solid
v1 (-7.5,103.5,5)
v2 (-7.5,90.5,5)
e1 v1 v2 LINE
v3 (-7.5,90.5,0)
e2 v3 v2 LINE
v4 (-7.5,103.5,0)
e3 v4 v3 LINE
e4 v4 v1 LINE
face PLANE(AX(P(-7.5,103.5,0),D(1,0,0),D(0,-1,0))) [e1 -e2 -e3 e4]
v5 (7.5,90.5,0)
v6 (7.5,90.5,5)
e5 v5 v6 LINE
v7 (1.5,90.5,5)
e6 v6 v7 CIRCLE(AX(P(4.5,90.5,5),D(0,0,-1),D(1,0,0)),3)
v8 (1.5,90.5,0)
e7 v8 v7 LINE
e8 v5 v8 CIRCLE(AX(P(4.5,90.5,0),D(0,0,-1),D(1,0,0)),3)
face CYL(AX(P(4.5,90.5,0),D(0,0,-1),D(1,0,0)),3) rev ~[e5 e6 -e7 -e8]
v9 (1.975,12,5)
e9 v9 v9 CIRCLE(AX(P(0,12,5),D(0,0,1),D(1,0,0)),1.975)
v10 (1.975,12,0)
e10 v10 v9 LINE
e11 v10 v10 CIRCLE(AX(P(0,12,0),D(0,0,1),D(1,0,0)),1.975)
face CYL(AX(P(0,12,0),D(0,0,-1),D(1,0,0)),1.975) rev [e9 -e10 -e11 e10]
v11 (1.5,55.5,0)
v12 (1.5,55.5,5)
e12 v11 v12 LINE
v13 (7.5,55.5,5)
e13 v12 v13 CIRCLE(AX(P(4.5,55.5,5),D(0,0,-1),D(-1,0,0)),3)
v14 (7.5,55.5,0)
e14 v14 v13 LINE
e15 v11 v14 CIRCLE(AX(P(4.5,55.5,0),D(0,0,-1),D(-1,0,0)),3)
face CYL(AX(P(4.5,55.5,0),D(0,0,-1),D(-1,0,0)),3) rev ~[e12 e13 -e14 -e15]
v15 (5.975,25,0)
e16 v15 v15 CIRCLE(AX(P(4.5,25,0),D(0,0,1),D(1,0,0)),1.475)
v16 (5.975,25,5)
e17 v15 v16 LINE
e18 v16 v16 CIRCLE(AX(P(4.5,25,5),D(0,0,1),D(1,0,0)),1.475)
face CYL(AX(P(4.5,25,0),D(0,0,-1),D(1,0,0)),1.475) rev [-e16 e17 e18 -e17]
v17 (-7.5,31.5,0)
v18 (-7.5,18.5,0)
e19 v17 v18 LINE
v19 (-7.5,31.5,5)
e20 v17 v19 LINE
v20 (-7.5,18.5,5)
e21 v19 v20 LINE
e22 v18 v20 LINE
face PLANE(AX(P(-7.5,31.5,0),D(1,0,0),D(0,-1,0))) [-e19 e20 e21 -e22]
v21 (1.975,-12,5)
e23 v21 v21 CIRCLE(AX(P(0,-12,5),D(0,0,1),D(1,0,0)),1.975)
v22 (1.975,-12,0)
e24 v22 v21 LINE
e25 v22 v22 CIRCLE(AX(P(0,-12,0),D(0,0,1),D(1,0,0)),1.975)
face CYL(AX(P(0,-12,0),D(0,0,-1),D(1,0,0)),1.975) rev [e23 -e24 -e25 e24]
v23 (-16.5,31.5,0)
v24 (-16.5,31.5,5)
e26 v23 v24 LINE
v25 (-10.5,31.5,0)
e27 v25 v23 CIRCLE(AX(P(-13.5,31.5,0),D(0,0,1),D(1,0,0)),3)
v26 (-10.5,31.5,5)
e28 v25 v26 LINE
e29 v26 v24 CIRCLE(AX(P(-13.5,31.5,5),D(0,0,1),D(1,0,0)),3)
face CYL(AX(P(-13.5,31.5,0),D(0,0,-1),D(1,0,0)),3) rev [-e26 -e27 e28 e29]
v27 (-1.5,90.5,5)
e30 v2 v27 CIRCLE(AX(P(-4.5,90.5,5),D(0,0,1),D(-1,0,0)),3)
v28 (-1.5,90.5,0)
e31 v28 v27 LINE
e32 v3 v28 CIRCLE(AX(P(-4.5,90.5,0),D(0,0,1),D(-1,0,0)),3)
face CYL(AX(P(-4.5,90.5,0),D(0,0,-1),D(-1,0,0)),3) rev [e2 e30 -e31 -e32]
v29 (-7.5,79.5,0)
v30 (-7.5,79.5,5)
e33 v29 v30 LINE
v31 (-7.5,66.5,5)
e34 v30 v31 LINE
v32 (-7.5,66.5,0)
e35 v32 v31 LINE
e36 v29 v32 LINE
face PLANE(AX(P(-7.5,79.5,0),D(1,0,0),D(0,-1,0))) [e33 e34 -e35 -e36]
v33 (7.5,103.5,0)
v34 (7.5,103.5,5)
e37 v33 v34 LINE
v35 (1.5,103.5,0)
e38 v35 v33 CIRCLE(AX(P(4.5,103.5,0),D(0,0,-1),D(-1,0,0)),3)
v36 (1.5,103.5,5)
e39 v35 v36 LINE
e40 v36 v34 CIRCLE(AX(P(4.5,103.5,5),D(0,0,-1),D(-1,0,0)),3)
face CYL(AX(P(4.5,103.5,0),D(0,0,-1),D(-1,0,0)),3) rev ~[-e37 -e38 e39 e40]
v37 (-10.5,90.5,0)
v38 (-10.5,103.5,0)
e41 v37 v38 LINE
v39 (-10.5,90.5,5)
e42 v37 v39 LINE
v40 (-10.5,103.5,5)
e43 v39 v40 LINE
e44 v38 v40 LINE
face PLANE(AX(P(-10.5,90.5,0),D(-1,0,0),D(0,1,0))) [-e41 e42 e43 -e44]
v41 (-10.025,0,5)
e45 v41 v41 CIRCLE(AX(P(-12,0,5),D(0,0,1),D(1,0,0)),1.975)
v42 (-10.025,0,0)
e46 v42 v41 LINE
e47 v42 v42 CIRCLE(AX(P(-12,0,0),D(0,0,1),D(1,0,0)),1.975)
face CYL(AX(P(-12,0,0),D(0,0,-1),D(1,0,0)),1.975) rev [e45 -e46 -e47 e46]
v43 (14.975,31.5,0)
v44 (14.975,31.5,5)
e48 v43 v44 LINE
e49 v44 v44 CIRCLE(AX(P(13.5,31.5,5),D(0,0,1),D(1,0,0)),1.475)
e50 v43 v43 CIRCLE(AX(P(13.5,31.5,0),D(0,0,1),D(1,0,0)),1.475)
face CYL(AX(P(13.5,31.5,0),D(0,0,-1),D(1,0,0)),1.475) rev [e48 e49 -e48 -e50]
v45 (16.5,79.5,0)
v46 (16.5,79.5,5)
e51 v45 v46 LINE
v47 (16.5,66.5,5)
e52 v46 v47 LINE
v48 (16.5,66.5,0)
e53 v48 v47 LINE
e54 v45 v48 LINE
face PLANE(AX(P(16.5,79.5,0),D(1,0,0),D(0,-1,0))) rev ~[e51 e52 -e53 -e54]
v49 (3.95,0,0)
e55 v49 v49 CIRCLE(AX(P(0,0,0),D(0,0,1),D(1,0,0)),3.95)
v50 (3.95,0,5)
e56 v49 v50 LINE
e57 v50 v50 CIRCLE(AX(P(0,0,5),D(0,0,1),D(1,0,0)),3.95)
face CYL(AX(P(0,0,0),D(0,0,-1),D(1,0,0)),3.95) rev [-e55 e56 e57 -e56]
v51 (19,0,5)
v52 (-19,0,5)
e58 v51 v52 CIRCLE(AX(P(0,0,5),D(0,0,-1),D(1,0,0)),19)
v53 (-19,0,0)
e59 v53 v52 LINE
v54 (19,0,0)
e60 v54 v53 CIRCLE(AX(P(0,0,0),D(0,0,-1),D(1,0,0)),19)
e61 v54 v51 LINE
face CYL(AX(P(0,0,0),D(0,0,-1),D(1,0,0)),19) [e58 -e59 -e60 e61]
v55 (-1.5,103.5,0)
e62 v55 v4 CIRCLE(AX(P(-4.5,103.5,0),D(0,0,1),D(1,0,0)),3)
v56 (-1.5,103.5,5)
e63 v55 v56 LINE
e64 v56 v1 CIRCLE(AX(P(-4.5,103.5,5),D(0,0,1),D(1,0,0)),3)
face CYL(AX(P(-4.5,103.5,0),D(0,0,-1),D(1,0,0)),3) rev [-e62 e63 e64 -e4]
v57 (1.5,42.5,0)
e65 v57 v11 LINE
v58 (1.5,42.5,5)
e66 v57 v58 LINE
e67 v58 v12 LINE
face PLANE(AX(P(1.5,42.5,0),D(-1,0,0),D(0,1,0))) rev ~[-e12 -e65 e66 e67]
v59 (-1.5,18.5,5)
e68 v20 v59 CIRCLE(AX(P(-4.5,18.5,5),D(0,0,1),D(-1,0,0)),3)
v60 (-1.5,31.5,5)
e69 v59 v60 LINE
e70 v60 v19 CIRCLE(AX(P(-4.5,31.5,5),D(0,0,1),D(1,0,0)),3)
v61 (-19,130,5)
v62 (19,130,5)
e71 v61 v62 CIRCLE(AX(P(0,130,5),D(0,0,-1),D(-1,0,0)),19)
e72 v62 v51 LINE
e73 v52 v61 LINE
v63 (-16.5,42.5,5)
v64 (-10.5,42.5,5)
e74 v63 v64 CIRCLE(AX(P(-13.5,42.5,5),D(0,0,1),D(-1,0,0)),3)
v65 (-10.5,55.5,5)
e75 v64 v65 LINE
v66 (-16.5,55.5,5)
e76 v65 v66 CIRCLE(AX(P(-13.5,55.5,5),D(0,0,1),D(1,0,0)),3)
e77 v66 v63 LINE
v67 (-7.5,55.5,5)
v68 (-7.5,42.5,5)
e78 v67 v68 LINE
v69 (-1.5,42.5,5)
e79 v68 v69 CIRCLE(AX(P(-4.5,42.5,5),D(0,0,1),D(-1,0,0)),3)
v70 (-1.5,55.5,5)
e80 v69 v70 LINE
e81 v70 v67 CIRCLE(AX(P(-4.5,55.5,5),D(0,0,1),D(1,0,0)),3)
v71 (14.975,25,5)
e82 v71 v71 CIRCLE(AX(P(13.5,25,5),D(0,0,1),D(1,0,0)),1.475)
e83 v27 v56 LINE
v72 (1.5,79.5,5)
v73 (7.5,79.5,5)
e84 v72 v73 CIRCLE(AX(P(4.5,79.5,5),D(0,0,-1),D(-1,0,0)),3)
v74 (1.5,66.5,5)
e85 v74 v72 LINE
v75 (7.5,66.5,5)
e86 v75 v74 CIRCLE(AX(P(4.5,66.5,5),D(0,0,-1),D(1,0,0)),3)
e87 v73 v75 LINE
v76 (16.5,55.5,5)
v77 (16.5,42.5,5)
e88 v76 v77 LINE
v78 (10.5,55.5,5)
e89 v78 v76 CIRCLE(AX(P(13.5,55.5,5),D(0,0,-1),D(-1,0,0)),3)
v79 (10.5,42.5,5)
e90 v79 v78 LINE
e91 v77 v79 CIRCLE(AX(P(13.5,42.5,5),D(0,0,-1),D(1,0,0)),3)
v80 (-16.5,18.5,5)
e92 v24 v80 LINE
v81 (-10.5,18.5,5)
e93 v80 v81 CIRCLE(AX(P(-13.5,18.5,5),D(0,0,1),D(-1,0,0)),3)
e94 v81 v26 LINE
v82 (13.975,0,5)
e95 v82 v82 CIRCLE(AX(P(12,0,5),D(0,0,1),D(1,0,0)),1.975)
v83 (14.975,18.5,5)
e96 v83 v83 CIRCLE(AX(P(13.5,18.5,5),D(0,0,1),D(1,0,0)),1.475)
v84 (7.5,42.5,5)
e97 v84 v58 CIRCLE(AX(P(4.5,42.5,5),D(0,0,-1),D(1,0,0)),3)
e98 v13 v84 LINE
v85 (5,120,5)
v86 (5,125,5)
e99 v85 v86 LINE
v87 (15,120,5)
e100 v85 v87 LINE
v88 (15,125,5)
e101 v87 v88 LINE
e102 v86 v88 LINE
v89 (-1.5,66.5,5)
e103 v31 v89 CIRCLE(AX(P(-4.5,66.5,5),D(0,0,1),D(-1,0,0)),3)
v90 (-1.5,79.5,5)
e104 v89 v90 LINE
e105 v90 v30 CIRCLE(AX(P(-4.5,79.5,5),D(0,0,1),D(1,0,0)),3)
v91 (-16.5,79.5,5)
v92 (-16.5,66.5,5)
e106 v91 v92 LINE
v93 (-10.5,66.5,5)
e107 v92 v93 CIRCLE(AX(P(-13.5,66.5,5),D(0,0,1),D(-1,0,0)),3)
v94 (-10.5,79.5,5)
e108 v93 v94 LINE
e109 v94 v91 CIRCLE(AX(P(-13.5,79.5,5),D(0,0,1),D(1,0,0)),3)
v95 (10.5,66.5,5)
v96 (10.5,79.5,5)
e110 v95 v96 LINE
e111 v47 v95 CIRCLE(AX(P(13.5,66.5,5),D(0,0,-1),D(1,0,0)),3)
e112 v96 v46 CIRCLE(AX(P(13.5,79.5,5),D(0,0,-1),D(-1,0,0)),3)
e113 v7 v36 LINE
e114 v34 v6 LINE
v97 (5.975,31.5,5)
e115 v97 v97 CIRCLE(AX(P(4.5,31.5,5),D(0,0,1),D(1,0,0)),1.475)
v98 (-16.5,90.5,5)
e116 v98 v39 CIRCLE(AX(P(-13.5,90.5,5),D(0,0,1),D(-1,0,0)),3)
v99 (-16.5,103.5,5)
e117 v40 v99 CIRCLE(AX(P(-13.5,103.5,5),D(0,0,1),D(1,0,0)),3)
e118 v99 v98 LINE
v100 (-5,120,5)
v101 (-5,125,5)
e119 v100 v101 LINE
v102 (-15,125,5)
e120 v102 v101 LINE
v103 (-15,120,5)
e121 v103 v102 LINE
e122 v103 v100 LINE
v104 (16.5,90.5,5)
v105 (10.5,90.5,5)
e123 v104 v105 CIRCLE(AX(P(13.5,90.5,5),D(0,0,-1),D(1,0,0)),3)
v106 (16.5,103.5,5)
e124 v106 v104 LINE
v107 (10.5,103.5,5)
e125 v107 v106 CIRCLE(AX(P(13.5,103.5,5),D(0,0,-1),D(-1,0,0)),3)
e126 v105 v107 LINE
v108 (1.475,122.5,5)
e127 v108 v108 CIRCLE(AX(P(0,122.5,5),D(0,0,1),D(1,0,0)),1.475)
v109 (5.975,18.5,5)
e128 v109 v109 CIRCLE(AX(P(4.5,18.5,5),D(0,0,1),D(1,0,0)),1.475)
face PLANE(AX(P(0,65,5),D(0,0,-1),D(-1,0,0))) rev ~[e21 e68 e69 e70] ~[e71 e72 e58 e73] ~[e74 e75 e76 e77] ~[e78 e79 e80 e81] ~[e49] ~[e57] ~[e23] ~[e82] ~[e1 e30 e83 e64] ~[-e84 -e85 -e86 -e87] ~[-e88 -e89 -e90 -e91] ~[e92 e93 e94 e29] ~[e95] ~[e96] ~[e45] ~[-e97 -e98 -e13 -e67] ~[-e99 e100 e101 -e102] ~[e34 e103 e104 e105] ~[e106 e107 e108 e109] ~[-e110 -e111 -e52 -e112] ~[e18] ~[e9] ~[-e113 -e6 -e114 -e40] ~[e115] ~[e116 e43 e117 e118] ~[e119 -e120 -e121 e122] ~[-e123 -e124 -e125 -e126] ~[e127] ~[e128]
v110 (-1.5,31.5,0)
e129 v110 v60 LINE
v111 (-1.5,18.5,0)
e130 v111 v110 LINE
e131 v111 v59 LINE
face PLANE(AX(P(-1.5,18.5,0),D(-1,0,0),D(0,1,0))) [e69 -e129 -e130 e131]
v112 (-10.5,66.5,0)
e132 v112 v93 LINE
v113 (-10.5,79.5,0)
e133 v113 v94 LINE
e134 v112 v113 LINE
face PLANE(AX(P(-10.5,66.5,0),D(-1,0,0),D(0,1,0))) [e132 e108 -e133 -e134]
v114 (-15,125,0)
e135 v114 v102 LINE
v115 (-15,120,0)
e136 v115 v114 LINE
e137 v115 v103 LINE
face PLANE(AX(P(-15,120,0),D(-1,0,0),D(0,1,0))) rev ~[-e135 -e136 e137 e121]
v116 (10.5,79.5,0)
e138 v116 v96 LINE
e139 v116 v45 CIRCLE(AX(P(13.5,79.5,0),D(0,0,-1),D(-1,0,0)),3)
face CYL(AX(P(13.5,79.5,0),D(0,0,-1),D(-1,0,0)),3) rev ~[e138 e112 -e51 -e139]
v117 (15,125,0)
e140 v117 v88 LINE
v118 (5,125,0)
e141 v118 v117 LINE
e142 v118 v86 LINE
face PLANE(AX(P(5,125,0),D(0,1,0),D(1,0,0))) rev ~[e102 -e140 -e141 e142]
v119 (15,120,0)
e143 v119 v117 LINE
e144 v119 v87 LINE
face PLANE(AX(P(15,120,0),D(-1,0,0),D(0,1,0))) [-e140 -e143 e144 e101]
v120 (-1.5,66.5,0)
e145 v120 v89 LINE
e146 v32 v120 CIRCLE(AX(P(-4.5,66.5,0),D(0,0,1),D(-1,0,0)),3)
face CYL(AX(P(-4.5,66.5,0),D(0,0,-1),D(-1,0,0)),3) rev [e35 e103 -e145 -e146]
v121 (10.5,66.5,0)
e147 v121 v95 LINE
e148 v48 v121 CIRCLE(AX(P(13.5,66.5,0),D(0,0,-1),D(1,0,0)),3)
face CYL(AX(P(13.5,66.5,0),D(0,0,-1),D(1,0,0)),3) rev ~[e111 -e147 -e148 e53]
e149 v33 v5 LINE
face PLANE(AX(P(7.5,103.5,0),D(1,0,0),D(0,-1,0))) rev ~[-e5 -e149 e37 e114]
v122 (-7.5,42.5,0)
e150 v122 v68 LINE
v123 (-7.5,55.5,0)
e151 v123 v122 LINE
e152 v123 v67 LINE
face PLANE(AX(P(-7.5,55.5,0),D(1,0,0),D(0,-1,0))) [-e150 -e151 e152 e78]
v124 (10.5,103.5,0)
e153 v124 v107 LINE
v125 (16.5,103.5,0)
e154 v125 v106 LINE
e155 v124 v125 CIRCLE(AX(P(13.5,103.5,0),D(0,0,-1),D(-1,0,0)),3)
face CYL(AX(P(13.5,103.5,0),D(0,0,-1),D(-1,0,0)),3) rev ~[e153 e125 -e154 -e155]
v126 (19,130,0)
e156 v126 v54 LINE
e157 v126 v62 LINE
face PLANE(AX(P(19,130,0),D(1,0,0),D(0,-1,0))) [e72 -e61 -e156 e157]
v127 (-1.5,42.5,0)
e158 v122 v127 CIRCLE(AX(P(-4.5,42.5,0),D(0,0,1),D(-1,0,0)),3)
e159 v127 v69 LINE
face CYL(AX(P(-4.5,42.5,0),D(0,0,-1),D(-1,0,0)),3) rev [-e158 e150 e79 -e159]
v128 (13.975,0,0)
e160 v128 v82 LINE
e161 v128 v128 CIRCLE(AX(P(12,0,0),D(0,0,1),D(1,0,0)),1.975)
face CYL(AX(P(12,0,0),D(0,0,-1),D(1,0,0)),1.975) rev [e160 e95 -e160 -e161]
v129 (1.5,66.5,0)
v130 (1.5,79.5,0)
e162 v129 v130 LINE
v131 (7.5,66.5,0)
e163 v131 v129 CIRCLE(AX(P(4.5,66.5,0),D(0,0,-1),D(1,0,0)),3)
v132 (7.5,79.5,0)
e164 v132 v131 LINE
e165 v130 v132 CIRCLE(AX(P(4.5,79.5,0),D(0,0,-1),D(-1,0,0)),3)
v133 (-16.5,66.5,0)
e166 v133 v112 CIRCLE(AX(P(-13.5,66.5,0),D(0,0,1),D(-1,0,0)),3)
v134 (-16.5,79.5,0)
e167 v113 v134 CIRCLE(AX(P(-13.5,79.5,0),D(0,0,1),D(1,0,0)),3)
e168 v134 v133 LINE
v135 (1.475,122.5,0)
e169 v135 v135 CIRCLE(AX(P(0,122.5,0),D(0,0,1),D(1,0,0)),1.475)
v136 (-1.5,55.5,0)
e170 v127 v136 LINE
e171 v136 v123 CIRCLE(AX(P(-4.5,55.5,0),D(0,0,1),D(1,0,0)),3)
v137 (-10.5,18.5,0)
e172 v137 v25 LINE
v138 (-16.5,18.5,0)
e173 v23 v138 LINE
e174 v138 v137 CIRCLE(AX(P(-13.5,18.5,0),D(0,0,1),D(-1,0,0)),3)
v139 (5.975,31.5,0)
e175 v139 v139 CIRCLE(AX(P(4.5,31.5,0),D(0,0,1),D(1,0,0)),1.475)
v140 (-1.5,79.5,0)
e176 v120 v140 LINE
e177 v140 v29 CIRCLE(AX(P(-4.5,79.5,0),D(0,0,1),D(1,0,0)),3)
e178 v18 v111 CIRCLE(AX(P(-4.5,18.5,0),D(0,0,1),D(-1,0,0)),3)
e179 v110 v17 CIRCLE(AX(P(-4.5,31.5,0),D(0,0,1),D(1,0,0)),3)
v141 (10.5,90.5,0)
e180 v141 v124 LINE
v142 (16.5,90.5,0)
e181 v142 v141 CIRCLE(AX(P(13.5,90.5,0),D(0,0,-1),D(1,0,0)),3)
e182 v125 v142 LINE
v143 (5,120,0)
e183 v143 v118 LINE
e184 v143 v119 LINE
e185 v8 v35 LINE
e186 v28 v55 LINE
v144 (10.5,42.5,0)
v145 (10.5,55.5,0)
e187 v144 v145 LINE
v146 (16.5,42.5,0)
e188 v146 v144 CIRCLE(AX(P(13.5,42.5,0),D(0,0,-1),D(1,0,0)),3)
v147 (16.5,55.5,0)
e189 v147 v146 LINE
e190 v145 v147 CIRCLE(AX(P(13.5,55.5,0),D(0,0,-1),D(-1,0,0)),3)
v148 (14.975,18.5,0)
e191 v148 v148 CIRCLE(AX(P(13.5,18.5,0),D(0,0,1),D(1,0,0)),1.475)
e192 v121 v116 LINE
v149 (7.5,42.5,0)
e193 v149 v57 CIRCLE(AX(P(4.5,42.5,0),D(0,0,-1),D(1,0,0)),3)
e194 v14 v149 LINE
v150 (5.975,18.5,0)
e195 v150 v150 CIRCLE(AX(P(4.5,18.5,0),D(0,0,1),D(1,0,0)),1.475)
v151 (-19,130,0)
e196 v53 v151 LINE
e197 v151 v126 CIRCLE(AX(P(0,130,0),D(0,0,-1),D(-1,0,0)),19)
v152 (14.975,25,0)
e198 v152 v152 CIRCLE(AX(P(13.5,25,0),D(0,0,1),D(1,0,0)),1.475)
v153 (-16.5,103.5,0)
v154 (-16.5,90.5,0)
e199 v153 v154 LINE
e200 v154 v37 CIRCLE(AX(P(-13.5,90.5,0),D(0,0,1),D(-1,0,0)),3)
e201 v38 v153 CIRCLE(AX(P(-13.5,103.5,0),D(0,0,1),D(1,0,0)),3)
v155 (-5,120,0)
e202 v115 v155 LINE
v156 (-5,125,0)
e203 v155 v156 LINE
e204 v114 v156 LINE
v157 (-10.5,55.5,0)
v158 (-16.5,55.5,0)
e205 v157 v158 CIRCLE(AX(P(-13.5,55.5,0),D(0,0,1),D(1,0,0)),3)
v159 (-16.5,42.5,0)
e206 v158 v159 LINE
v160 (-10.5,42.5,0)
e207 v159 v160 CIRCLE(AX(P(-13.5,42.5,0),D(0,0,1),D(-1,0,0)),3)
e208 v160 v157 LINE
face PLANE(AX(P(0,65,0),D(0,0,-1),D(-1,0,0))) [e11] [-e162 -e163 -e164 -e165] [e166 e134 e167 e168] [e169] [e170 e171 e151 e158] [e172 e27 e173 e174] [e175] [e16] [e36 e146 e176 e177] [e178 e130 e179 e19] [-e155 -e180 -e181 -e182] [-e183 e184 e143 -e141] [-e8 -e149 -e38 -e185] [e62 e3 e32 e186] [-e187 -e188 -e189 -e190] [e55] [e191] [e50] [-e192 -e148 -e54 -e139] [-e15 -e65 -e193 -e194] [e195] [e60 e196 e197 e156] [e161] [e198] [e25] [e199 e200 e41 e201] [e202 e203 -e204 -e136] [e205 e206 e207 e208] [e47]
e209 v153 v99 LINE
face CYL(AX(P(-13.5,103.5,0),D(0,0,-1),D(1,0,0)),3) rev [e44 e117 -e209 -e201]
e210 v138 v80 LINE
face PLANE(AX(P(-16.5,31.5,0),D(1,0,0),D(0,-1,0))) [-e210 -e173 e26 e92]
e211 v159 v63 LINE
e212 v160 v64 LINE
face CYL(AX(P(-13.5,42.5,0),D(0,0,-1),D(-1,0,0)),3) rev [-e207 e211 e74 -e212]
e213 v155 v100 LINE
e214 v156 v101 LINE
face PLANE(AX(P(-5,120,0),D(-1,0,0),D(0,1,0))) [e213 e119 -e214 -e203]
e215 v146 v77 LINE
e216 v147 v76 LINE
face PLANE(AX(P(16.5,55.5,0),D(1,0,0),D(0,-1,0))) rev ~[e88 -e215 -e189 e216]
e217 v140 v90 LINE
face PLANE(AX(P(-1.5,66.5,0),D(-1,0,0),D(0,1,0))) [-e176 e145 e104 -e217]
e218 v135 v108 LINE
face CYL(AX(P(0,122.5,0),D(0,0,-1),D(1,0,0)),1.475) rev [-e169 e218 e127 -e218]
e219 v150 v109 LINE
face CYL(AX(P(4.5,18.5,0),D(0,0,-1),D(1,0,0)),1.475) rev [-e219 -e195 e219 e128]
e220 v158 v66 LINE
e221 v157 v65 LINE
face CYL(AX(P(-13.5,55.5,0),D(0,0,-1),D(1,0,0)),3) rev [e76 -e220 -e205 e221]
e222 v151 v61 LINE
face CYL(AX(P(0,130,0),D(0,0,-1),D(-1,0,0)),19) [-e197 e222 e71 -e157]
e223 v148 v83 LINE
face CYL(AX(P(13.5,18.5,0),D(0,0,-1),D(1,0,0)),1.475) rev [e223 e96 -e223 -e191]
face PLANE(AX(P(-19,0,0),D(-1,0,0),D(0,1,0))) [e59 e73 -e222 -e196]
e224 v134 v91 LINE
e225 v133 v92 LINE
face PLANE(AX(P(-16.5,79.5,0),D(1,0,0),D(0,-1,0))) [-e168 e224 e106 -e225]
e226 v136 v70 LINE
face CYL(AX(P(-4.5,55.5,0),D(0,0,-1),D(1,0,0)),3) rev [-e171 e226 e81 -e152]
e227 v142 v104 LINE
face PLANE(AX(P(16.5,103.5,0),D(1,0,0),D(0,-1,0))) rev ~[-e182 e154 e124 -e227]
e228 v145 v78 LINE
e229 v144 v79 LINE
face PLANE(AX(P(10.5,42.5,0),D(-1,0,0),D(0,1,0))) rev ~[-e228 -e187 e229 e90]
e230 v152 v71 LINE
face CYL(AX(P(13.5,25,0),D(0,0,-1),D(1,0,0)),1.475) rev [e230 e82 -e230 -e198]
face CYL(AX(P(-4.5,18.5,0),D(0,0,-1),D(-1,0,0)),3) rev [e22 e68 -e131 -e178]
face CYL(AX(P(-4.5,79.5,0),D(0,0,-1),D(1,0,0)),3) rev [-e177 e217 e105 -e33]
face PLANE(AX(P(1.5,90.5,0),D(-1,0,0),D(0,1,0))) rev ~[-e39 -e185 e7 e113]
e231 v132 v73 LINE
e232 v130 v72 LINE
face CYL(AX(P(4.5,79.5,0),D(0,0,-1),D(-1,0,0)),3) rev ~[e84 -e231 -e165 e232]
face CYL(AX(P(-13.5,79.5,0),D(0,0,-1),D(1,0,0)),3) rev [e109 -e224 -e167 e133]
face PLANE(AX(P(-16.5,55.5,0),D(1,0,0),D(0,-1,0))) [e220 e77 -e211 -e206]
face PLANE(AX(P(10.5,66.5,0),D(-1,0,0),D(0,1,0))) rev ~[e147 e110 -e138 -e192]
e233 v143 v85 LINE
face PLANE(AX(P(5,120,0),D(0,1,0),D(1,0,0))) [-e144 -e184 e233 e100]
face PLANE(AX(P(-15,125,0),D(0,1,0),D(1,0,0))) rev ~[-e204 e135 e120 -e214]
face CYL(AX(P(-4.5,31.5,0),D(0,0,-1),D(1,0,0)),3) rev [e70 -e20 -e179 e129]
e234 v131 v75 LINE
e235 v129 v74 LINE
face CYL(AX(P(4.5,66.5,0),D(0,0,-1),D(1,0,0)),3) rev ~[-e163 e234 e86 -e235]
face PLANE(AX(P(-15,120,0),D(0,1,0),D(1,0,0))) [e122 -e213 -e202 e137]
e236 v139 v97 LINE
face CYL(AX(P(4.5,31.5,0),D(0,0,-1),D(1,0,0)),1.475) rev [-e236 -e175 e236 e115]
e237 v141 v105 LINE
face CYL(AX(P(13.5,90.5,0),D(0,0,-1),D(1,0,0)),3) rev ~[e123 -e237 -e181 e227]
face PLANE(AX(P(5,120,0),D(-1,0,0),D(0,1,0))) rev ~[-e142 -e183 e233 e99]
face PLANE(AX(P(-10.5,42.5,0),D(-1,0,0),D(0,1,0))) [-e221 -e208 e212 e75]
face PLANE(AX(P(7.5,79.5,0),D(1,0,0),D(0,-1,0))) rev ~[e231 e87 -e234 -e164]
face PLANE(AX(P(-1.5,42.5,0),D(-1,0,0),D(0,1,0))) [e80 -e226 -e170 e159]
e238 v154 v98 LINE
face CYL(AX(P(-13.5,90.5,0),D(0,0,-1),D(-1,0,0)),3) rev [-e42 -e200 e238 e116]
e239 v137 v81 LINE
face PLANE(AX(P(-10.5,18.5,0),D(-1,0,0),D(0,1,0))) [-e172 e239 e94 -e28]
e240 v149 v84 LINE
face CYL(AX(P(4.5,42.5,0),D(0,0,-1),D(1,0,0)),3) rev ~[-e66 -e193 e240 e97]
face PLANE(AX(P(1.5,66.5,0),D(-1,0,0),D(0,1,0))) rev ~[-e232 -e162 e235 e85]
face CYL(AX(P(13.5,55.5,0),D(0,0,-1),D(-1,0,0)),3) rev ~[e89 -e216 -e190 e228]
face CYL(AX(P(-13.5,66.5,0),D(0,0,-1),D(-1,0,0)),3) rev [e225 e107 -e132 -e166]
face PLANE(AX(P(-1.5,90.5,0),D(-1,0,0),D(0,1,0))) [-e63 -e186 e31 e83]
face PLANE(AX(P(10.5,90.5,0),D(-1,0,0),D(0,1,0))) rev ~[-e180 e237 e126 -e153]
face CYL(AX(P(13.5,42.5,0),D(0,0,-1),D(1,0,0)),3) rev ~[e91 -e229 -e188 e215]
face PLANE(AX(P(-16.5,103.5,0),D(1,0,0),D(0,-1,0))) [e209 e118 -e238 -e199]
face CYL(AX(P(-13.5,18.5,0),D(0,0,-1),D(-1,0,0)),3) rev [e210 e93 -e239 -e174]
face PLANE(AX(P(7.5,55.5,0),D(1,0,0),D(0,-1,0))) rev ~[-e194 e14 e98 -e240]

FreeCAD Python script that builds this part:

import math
import FreeCAD as App
import Part
import Sketcher
Q = App.Units.Quantity


def add_polygon(sketch, points):
    """Adds a closed chain of lines whose ends are joined by coincident constraints."""
    first, n = sketch.GeometryCount, len(points)
    for a, b in zip(points, points[1:] + points[:1]):
        sketch.addGeometry(Part.LineSegment(App.Vector(*a, 0), App.Vector(*b, 0)), False)
    for i in range(n):
        sketch.addConstraint(Sketcher.Constraint("Coincident", first + i, 2, first + (i + 1) % n, 1))

doc = App.newDocument("Part")
body = doc.addObject("PartDesign::Body", "Body")

# Sketch on XY plane
sketch1 = body.newObject("Sketcher::SketchObject", "Sketch")
sketch1.AttachmentSupport = (doc.getObject("XY_Plane"), [""])
sketch1.MapMode = "FlatFace"
sketch1.addGeometry(Part.LineSegment(App.Vector(-19, 130, 0), App.Vector(-19, 0, 0)), False)  # 0
sketch1.addGeometry(Part.ArcOfCircle(Part.Circle(App.Vector(0, 0, 0), App.Vector(0, 0, 1), 19), math.radians(180), math.radians(360)), False)  # 1
sketch1.addGeometry(Part.LineSegment(App.Vector(19, 0, 0), App.Vector(19, 130, 0)), False)  # 2
sketch1.addGeometry(Part.ArcOfCircle(Part.Circle(App.Vector(0, 130, 0), App.Vector(0, 0, 1), 19), math.radians(0), math.radians(180)), False)  # 3
sketch1.addGeometry(Part.Circle(App.Vector(12, 0, 0), App.Vector(0, 0, 1), 2), False)  # 4
sketch1.addGeometry(Part.Circle(App.Vector(13.5, 18.5, 0), App.Vector(0, 0, 1), 1.5), False)  # 5
sketch1.addGeometry(Part.Circle(App.Vector(4.5, 18.5, 0), App.Vector(0, 0, 1), 1.5), False)  # 6
sketch1.addGeometry(Part.Circle(App.Vector(13.5, 25, 0), App.Vector(0, 0, 1), 1.5), False)  # 7
sketch1.addGeometry(Part.Circle(App.Vector(13.5, 31.5, 0), App.Vector(0, 0, 1), 1.5), False)  # 8
sketch1.addGeometry(Part.LineSegment(App.Vector(16.5, 55.5, 0), App.Vector(16.5, 42.5, 0)), False)  # 9
sketch1.addGeometry(Part.ArcOfCircle(Part.Circle(App.Vector(13.5, 42.5, 0), App.Vector(0, 0, 1), 3), math.radians(180), math.radians(360)), False)  # 10
sketch1.addGeometry(Part.LineSegment(App.Vector(10.5, 42.5, 0), App.Vector(10.5, 55.5, 0)), False)  # 11
sketch1.addGeometry(Part.ArcOfCircle(Part.Circle(App.Vector(13.5, 55.5, 0), App.Vector(0, 0, 1), 3), math.radians(0), math.radians(180)), False)  # 12
sketch1.addGeometry(Part.Circle(App.Vector(4.5, 25, 0), App.Vector(0, 0, 1), 1.5), False)  # 13
sketch1.addGeometry(Part.Circle(App.Vector(4.5, 31.5, 0), App.Vector(0, 0, 1), 1.5), False)  # 14
sketch1.addGeometry(Part.LineSegment(App.Vector(7.5, 55.5, 0), App.Vector(7.5, 42.5, 0)), False)  # 15
sketch1.addGeometry(Part.ArcOfCircle(Part.Circle(App.Vector(4.5, 42.5, 0), App.Vector(0, 0, 1), 3), math.radians(180), math.radians(360)), False)  # 16
sketch1.addGeometry(Part.LineSegment(App.Vector(1.5, 42.5, 0), App.Vector(1.5, 55.5, 0)), False)  # 17
sketch1.addGeometry(Part.ArcOfCircle(Part.Circle(App.Vector(4.5, 55.5, 0), App.Vector(0, 0, 1), 3), math.radians(0), math.radians(180)), False)  # 18
sketch1.addGeometry(Part.Circle(App.Vector(0, -12, 0), App.Vector(0, 0, 1), 2), False)  # 19
sketch1.addGeometry(Part.Circle(App.Vector(0, 0, 0), App.Vector(0, 0, 1), 4), False)  # 20
sketch1.addGeometry(Part.Circle(App.Vector(0, 12, 0), App.Vector(0, 0, 1), 2), False)  # 21
sketch1.addGeometry(Part.Circle(App.Vector(-12, 0, 0), App.Vector(0, 0, 1), 2), False)  # 22
sketch1.addGeometry(Part.ArcOfCircle(Part.Circle(App.Vector(-4.5, 31.5, 0), App.Vector(0, 0, 1), 3), math.radians(0), math.radians(180)), False)  # 23
sketch1.addGeometry(Part.LineSegment(App.Vector(-1.5, 31.5, 0), App.Vector(-1.5, 18.5, 0)), False)  # 24
sketch1.addGeometry(Part.ArcOfCircle(Part.Circle(App.Vector(-4.5, 18.5, 0), App.Vector(0, 0, 1), 3), math.radians(180), math.radians(360)), False)  # 25
sketch1.addGeometry(Part.LineSegment(App.Vector(-7.5, 18.5, 0), App.Vector(-7.5, 31.5, 0)), False)  # 26
sketch1.addGeometry(Part.ArcOfCircle(Part.Circle(App.Vector(-4.5, 55.5, 0), App.Vector(0, 0, 1), 3), math.radians(0), math.radians(180)), False)  # 27
sketch1.addGeometry(Part.LineSegment(App.Vector(-1.5, 55.5, 0), App.Vector(-1.5, 42.5, 0)), False)  # 28
sketch1.addGeometry(Part.ArcOfCircle(Part.Circle(App.Vector(-4.5, 42.5, 0), App.Vector(0, 0, 1), 3), math.radians(180), math.radians(360)), False)  # 29
sketch1.addGeometry(Part.LineSegment(App.Vector(-7.5, 42.5, 0), App.Vector(-7.5, 55.5, 0)), False)  # 30
sketch1.addGeometry(Part.ArcOfCircle(Part.Circle(App.Vector(-13.5, 31.5, 0), App.Vector(0, 0, 1), 3), math.radians(0), math.radians(180)), False)  # 31
sketch1.addGeometry(Part.LineSegment(App.Vector(-10.5, 31.5, 0), App.Vector(-10.5, 18.5, 0)), False)  # 32
sketch1.addGeometry(Part.ArcOfCircle(Part.Circle(App.Vector(-13.5, 18.5, 0), App.Vector(0, 0, 1), 3), math.radians(180), math.radians(360)), False)  # 33
sketch1.addGeometry(Part.LineSegment(App.Vector(-16.5, 18.5, 0), App.Vector(-16.5, 31.5, 0)), False)  # 34
sketch1.addGeometry(Part.ArcOfCircle(Part.Circle(App.Vector(-13.5, 55.5, 0), App.Vector(0, 0, 1), 3), math.radians(0), math.radians(180)), False)  # 35
sketch1.addGeometry(Part.LineSegment(App.Vector(-10.5, 55.5, 0), App.Vector(-10.5, 42.5, 0)), False)  # 36
sketch1.addGeometry(Part.ArcOfCircle(Part.Circle(App.Vector(-13.5, 42.5, 0), App.Vector(0, 0, 1), 3), math.radians(180), math.radians(360)), False)  # 37
sketch1.addGeometry(Part.LineSegment(App.Vector(-16.5, 42.5, 0), App.Vector(-16.5, 55.5, 0)), False)  # 38
sketch1.addGeometry(Part.LineSegment(App.Vector(16.5, 79.5, 0), App.Vector(16.5, 66.5, 0)), False)  # 39
sketch1.addGeometry(Part.ArcOfCircle(Part.Circle(App.Vector(13.5, 66.5, 0), App.Vector(0, 0, 1), 3), math.radians(180), math.radians(360)), False)  # 40
sketch1.addGeometry(Part.LineSegment(App.Vector(10.5, 66.5, 0), App.Vector(10.5, 79.5, 0)), False)  # 41
sketch1.addGeometry(Part.ArcOfCircle(Part.Circle(App.Vector(13.5, 79.5, 0), App.Vector(0, 0, 1), 3), math.radians(0), math.radians(180)), False)  # 42
sketch1.addGeometry(Part.LineSegment(App.Vector(7.5, 79.5, 0), App.Vector(7.5, 66.5, 0)), False)  # 43
sketch1.addGeometry(Part.ArcOfCircle(Part.Circle(App.Vector(4.5, 66.5, 0), App.Vector(0, 0, 1), 3), math.radians(180), math.radians(360)), False)  # 44
sketch1.addGeometry(Part.LineSegment(App.Vector(1.5, 66.5, 0), App.Vector(1.5, 79.5, 0)), False)  # 45
sketch1.addGeometry(Part.ArcOfCircle(Part.Circle(App.Vector(4.5, 79.5, 0), App.Vector(0, 0, 1), 3), math.radians(0), math.radians(180)), False)  # 46
sketch1.addGeometry(Part.LineSegment(App.Vector(16.5, 103.5, 0), App.Vector(16.5, 90.5, 0)), False)  # 47
sketch1.addGeometry(Part.ArcOfCircle(Part.Circle(App.Vector(13.5, 90.5, 0), App.Vector(0, 0, 1), 3), math.radians(180), math.radians(360)), False)  # 48
sketch1.addGeometry(Part.LineSegment(App.Vector(10.5, 90.5, 0), App.Vector(10.5, 103.5, 0)), False)  # 49
sketch1.addGeometry(Part.ArcOfCircle(Part.Circle(App.Vector(13.5, 103.5, 0), App.Vector(0, 0, 1), 3), math.radians(0), math.radians(180)), False)  # 50
add_polygon(sketch1, [(5, 120), (5, 125), (15, 125), (15, 120)])  # lines 51-54
sketch1.addGeometry(Part.LineSegment(App.Vector(7.5, 103.5, 0), App.Vector(7.5, 90.5, 0)), False)  # 55
sketch1.addGeometry(Part.ArcOfCircle(Part.Circle(App.Vector(4.5, 90.5, 0), App.Vector(0, 0, 1), 3), math.radians(180), math.radians(360)), False)  # 56
sketch1.addGeometry(Part.LineSegment(App.Vector(1.5, 90.5, 0), App.Vector(1.5, 103.5, 0)), False)  # 57
sketch1.addGeometry(Part.ArcOfCircle(Part.Circle(App.Vector(4.5, 103.5, 0), App.Vector(0, 0, 1), 3), math.radians(0), math.radians(180)), False)  # 58
sketch1.addGeometry(Part.ArcOfCircle(Part.Circle(App.Vector(-4.5, 79.5, 0), App.Vector(0, 0, 1), 3), math.radians(0), math.radians(180)), False)  # 59
sketch1.addGeometry(Part.LineSegment(App.Vector(-1.5, 79.5, 0), App.Vector(-1.5, 66.5, 0)), False)  # 60
sketch1.addGeometry(Part.ArcOfCircle(Part.Circle(App.Vector(-4.5, 66.5, 0), App.Vector(0, 0, 1), 3), math.radians(180), math.radians(360)), False)  # 61
sketch1.addGeometry(Part.LineSegment(App.Vector(-7.5, 66.5, 0), App.Vector(-7.5, 79.5, 0)), False)  # 62
sketch1.addGeometry(Part.ArcOfCircle(Part.Circle(App.Vector(-13.5, 79.5, 0), App.Vector(0, 0, 1), 3), math.radians(0), math.radians(180)), False)  # 63
sketch1.addGeometry(Part.LineSegment(App.Vector(-10.5, 79.5, 0), App.Vector(-10.5, 66.5, 0)), False)  # 64
sketch1.addGeometry(Part.ArcOfCircle(Part.Circle(App.Vector(-13.5, 66.5, 0), App.Vector(0, 0, 1), 3), math.radians(180), math.radians(360)), False)  # 65
sketch1.addGeometry(Part.LineSegment(App.Vector(-16.5, 66.5, 0), App.Vector(-16.5, 79.5, 0)), False)  # 66
sketch1.addGeometry(Part.ArcOfCircle(Part.Circle(App.Vector(-4.5, 103.5, 0), App.Vector(0, 0, 1), 3), math.radians(0), math.radians(180)), False)  # 67
sketch1.addGeometry(Part.LineSegment(App.Vector(-1.5, 103.5, 0), App.Vector(-1.5, 90.5, 0)), False)  # 68
sketch1.addGeometry(Part.ArcOfCircle(Part.Circle(App.Vector(-4.5, 90.5, 0), App.Vector(0, 0, 1), 3), math.radians(180), math.radians(360)), False)  # 69
sketch1.addGeometry(Part.LineSegment(App.Vector(-7.5, 90.5, 0), App.Vector(-7.5, 103.5, 0)), False)  # 70
sketch1.addGeometry(Part.Circle(App.Vector(0, 122.5, 0), App.Vector(0, 0, 1), 1.5), False)  # 71
sketch1.addGeometry(Part.ArcOfCircle(Part.Circle(App.Vector(-13.5, 103.5, 0), App.Vector(0, 0, 1), 3), math.radians(0), math.radians(180)), False)  # 72
sketch1.addGeometry(Part.LineSegment(App.Vector(-10.5, 103.5, 0), App.Vector(-10.5, 90.5, 0)), False)  # 73
sketch1.addGeometry(Part.ArcOfCircle(Part.Circle(App.Vector(-13.5, 90.5, 0), App.Vector(0, 0, 1), 3), math.radians(180), math.radians(360)), False)  # 74
sketch1.addGeometry(Part.LineSegment(App.Vector(-16.5, 90.5, 0), App.Vector(-16.5, 103.5, 0)), False)  # 75
add_polygon(sketch1, [(-15, 120), (-15, 125), (-5, 125), (-5, 120)])  # lines 76-79
sketch1.addConstraint(Sketcher.Constraint("Tangent", 0, 2, 1, 1))
sketch1.addConstraint(Sketcher.Constraint("Tangent", 1, 2, 2, 1))
sketch1.addConstraint(Sketcher.Constraint("Tangent", 2, 2, 3, 1))
sketch1.addConstraint(Sketcher.Constraint("Tangent", 3, 2, 0, 1))
sketch1.addConstraint(Sketcher.Constraint("Tangent", 9, 2, 10, 2))
sketch1.addConstraint(Sketcher.Constraint("Tangent", 10, 1, 11, 1))
sketch1.addConstraint(Sketcher.Constraint("Tangent", 11, 2, 12, 2))
sketch1.addConstraint(Sketcher.Constraint("Tangent", 12, 1, 9, 1))
sketch1.addConstraint(Sketcher.Constraint("Tangent", 15, 2, 16, 2))
sketch1.addConstraint(Sketcher.Constraint("Tangent", 16, 1, 17, 1))
sketch1.addConstraint(Sketcher.Constraint("Tangent", 17, 2, 18, 2))
sketch1.addConstraint(Sketcher.Constraint("Tangent", 18, 1, 15, 1))
sketch1.addConstraint(Sketcher.Constraint("Tangent", 23, 1, 24, 1))
sketch1.addConstraint(Sketcher.Constraint("Tangent", 24, 2, 25, 2))
sketch1.addConstraint(Sketcher.Constraint("Tangent", 25, 1, 26, 1))
sketch1.addConstraint(Sketcher.Constraint("Tangent", 26, 2, 23, 2))
sketch1.addConstraint(Sketcher.Constraint("Tangent", 27, 1, 28, 1))
sketch1.addConstraint(Sketcher.Constraint("Tangent", 28, 2, 29, 2))
sketch1.addConstraint(Sketcher.Constraint("Tangent", 29, 1, 30, 1))
sketch1.addConstraint(Sketcher.Constraint("Tangent", 30, 2, 27, 2))
sketch1.addConstraint(Sketcher.Constraint("Tangent", 31, 1, 32, 1))
sketch1.addConstraint(Sketcher.Constraint("Tangent", 32, 2, 33, 2))
sketch1.addConstraint(Sketcher.Constraint("Tangent", 33, 1, 34, 1))
sketch1.addConstraint(Sketcher.Constraint("Tangent", 34, 2, 31, 2))
sketch1.addConstraint(Sketcher.Constraint("Tangent", 35, 1, 36, 1))
sketch1.addConstraint(Sketcher.Constraint("Tangent", 36, 2, 37, 2))
sketch1.addConstraint(Sketcher.Constraint("Tangent", 37, 1, 38, 1))
sketch1.addConstraint(Sketcher.Constraint("Tangent", 38, 2, 35, 2))
sketch1.addConstraint(Sketcher.Constraint("Tangent", 39, 2, 40, 2))
sketch1.addConstraint(Sketcher.Constraint("Tangent", 40, 1, 41, 1))
sketch1.addConstraint(Sketcher.Constraint("Tangent", 41, 2, 42, 2))
sketch1.addConstraint(Sketcher.Constraint("Tangent", 42, 1, 39, 1))
sketch1.addConstraint(Sketcher.Constraint("Tangent", 43, 2, 44, 2))
sketch1.addConstraint(Sketcher.Constraint("Tangent", 44, 1, 45, 1))
sketch1.addConstraint(Sketcher.Constraint("Tangent", 45, 2, 46, 2))
sketch1.addConstraint(Sketcher.Constraint("Tangent", 46, 1, 43, 1))
sketch1.addConstraint(Sketcher.Constraint("Tangent", 47, 2, 48, 2))
sketch1.addConstraint(Sketcher.Constraint("Tangent", 48, 1, 49, 1))
sketch1.addConstraint(Sketcher.Constraint("Tangent", 49, 2, 50, 2))
sketch1.addConstraint(Sketcher.Constraint("Tangent", 50, 1, 47, 1))
sketch1.addConstraint(Sketcher.Constraint("Tangent", 55, 2, 56, 2))
sketch1.addConstraint(Sketcher.Constraint("Tangent", 56, 1, 57, 1))
sketch1.addConstraint(Sketcher.Constraint("Tangent", 57, 2, 58, 2))
sketch1.addConstraint(Sketcher.Constraint("Tangent", 58, 1, 55, 1))
sketch1.addConstraint(Sketcher.Constraint("Tangent", 59, 1, 60, 1))
sketch1.addConstraint(Sketcher.Constraint("Tangent", 60, 2, 61, 2))
sketch1.addConstraint(Sketcher.Constraint("Tangent", 61, 1, 62, 1))
sketch1.addConstraint(Sketcher.Constraint("Tangent", 62, 2, 59, 2))
sketch1.addConstraint(Sketcher.Constraint("Tangent", 63, 1, 64, 1))
sketch1.addConstraint(Sketcher.Constraint("Tangent", 64, 2, 65, 2))
sketch1.addConstraint(Sketcher.Constraint("Tangent", 65, 1, 66, 1))
sketch1.addConstraint(Sketcher.Constraint("Tangent", 66, 2, 63, 2))
sketch1.addConstraint(Sketcher.Constraint("Tangent", 67, 1, 68, 1))
sketch1.addConstraint(Sketcher.Constraint("Tangent", 68, 2, 69, 2))
sketch1.addConstraint(Sketcher.Constraint("Tangent", 69, 1, 70, 1))
sketch1.addConstraint(Sketcher.Constraint("Tangent", 70, 2, 67, 2))
sketch1.addConstraint(Sketcher.Constraint("Tangent", 72, 1, 73, 1))
sketch1.addConstraint(Sketcher.Constraint("Tangent", 73, 2, 74, 2))
sketch1.addConstraint(Sketcher.Constraint("Tangent", 74, 1, 75, 1))
sketch1.addConstraint(Sketcher.Constraint("Tangent", 75, 2, 72, 2))
sketch1.addConstraint(Sketcher.Constraint("Vertical", 0))
sketch1.addConstraint(Sketcher.Constraint("Vertical", 2))
sketch1.addConstraint(Sketcher.Constraint("Vertical", 9))
sketch1.addConstraint(Sketcher.Constraint("Vertical", 11))
sketch1.addConstraint(Sketcher.Constraint("Vertical", 15))
sketch1.addConstraint(Sketcher.Constraint("Vertical", 17))
sketch1.addConstraint(Sketcher.Constraint("Vertical", 24))
sketch1.addConstraint(Sketcher.Constraint("Vertical", 26))
sketch1.addConstraint(Sketcher.Constraint("Vertical", 28))
sketch1.addConstraint(Sketcher.Constraint("Vertical", 30))
sketch1.addConstraint(Sketcher.Constraint("Vertical", 32))
sketch1.addConstraint(Sketcher.Constraint("Vertical", 34))
sketch1.addConstraint(Sketcher.Constraint("Vertical", 36))
sketch1.addConstraint(Sketcher.Constraint("Vertical", 38))
sketch1.addConstraint(Sketcher.Constraint("Vertical", 39))
sketch1.addConstraint(Sketcher.Constraint("Vertical", 41))
sketch1.addConstraint(Sketcher.Constraint("Vertical", 43))
sketch1.addConstraint(Sketcher.Constraint("Vertical", 45))
sketch1.addConstraint(Sketcher.Constraint("Vertical", 47))
sketch1.addConstraint(Sketcher.Constraint("Vertical", 49))
sketch1.addConstraint(Sketcher.Constraint("Vertical", 51))
sketch1.addConstraint(Sketcher.Constraint("Horizontal", 52))
sketch1.addConstraint(Sketcher.Constraint("Vertical", 53))
sketch1.addConstraint(Sketcher.Constraint("Horizontal", 54))
sketch1.addConstraint(Sketcher.Constraint("Vertical", 55))
sketch1.addConstraint(Sketcher.Constraint("Vertical", 57))
sketch1.addConstraint(Sketcher.Constraint("Vertical", 60))
sketch1.addConstraint(Sketcher.Constraint("Vertical", 62))
sketch1.addConstraint(Sketcher.Constraint("Vertical", 64))
sketch1.addConstraint(Sketcher.Constraint("Vertical", 66))
sketch1.addConstraint(Sketcher.Constraint("Vertical", 68))
sketch1.addConstraint(Sketcher.Constraint("Vertical", 70))
sketch1.addConstraint(Sketcher.Constraint("Vertical", 73))
sketch1.addConstraint(Sketcher.Constraint("Vertical", 75))
sketch1.addConstraint(Sketcher.Constraint("Vertical", 76))
sketch1.addConstraint(Sketcher.Constraint("Horizontal", 77))
sketch1.addConstraint(Sketcher.Constraint("Vertical", 78))
sketch1.addConstraint(Sketcher.Constraint("Horizontal", 79))
sketch1.addConstraint(Sketcher.Constraint("Coincident", 1, 3, -1, 1))
sketch1.addConstraint(Sketcher.Constraint("Coincident", 20, 3, -1, 1))
sketch1.addConstraint(Sketcher.Constraint("Equal", 5, 6))
sketch1.addConstraint(Sketcher.Constraint("Equal", 6, 7))
sketch1.addConstraint(Sketcher.Constraint("Equal", 7, 8))
sketch1.addConstraint(Sketcher.Constraint("Equal", 8, 13))
sketch1.addConstraint(Sketcher.Constraint("Equal", 13, 14))
sketch1.addConstraint(Sketcher.Constraint("Equal", 12, 16))
sketch1.addConstraint(Sketcher.Constraint("Equal", 4, 19))
sketch1.addConstraint(Sketcher.Constraint("Equal", 19, 21))
sketch1.addConstraint(Sketcher.Constraint("Equal", 21, 22))
sketch1.addConstraint(Sketcher.Constraint("Equal", 18, 23))
sketch1.addConstraint(Sketcher.Constraint("Equal", 25, 27))
sketch1.addConstraint(Sketcher.Constraint("Equal", 29, 31))
sketch1.addConstraint(Sketcher.Constraint("Equal", 33, 35))
sketch1.addConstraint(Sketcher.Constraint("Equal", 37, 40))
sketch1.addConstraint(Sketcher.Constraint("Equal", 42, 44))
sketch1.addConstraint(Sketcher.Constraint("Equal", 46, 48))
sketch1.addConstraint(Sketcher.Constraint("Equal", 50, 56))
sketch1.addConstraint(Sketcher.Constraint("Equal", 58, 59))
sketch1.addConstraint(Sketcher.Constraint("Equal", 61, 63))
sketch1.addConstraint(Sketcher.Constraint("Equal", 65, 67))
sketch1.addConstraint(Sketcher.Constraint("Equal", 14, 71))
sketch1.addConstraint(Sketcher.Constraint("Equal", 69, 72))
sketch1.addConstraint(Sketcher.Constraint("Symmetric", 19, 3, 21, 3, -1, 1))
sketch1.addConstraint(Sketcher.Constraint("Symmetric", 4, 3, 22, 3, -1, 1))
sketch1.addConstraint(Sketcher.Constraint("Symmetric", 14, 3, 23, 3, -2))
sketch1.addConstraint(Sketcher.Constraint("Symmetric", 6, 3, 25, 3, -2))
sketch1.addConstraint(Sketcher.Constraint("Symmetric", 18, 3, 27, 3, -2))
sketch1.addConstraint(Sketcher.Constraint("Symmetric", 8, 3, 31, 3, -2))
sketch1.addConstraint(Sketcher.Constraint("Symmetric", 5, 3, 33, 3, -2))
sketch1.addConstraint(Sketcher.Constraint("Symmetric", 12, 3, 35, 3, -2))
sketch1.addConstraint(Sketcher.Constraint("Symmetric", 46, 3, 59, 3, -2))
sketch1.addConstraint(Sketcher.Constraint("Symmetric", 42, 3, 63, 3, -2))
sketch1.addConstraint(Sketcher.Constraint("Symmetric", 58, 3, 67, 3, -2))
sketch1.addConstraint(Sketcher.Constraint("Symmetric", 50, 3, 72, 3, -2))
sketch1.addConstraint(Sketcher.Constraint("Symmetric", 52, 2, 76, 2, -2))
sketch1.addConstraint(Sketcher.Constraint("Symmetric", 54, 2, 78, 2, -2))
sketch1.addConstraint(Sketcher.Constraint("PointOnObject", 4, 3, -1))
sketch1.addConstraint(Sketcher.Constraint("PointOnObject", 19, 3, -2))
sketch1.addConstraint(Sketcher.Constraint("PointOnObject", 71, 3, -2))
sketch1.addConstraint(Sketcher.Constraint("Horizontal", 5, 3, 6, 3))
sketch1.addConstraint(Sketcher.Constraint("Horizontal", 7, 3, 13, 3))
sketch1.addConstraint(Sketcher.Constraint("Horizontal", 8, 3, 14, 3))
sketch1.addConstraint(Sketcher.Constraint("Horizontal", 10, 3, 16, 3))
sketch1.addConstraint(Sketcher.Constraint("Horizontal", 12, 3, 18, 3))
sketch1.addConstraint(Sketcher.Constraint("Horizontal", 16, 3, 29, 3))
sketch1.addConstraint(Sketcher.Constraint("Horizontal", 29, 3, 37, 3))
sketch1.addConstraint(Sketcher.Constraint("Horizontal", 40, 3, 44, 3))
sketch1.addConstraint(Sketcher.Constraint("Horizontal", 42, 3, 46, 3))
sketch1.addConstraint(Sketcher.Constraint("Horizontal", 48, 3, 56, 3))
sketch1.addConstraint(Sketcher.Constraint("Horizontal", 50, 3, 58, 3))
sketch1.addConstraint(Sketcher.Constraint("Horizontal", 44, 3, 61, 3))
sketch1.addConstraint(Sketcher.Constraint("Horizontal", 61, 3, 65, 3))
sketch1.addConstraint(Sketcher.Constraint("Horizontal", 56, 3, 69, 3))
sketch1.addConstraint(Sketcher.Constraint("Horizontal", 69, 3, 74, 3))
sketch1.addConstraint(Sketcher.Constraint("Vertical", 5, 3, 7, 3))
sketch1.addConstraint(Sketcher.Constraint("Vertical", 8, 3, 10, 3))
sketch1.addConstraint(Sketcher.Constraint("Vertical", 6, 3, 13, 3))
sketch1.addConstraint(Sketcher.Constraint("Vertical", 14, 3, 16, 3))
sketch1.addConstraint(Sketcher.Constraint("Vertical", 12, 3, 40, 3))
sketch1.addConstraint(Sketcher.Constraint("Vertical", 18, 3, 44, 3))
sketch1.addConstraint(Sketcher.Constraint("Vertical", 42, 3, 48, 3))
sketch1.addConstraint(Sketcher.Constraint("Vertical", 46, 3, 56, 3))
sketch1.addConstraint(Sketcher.Constraint("Equal", 17, 24))
sketch1.addConstraint(Sketcher.Constraint("Equal", 38, 39))
sketch1.addConstraint(Sketcher.Constraint("Equal", 45, 47))
sketch1.addConstraint(Sketcher.Constraint("Radius", 1, Q("19 mm")))
sketch1.addConstraint(Sketcher.Constraint("Radius", 10, Q("3 mm")))
sketch1.addConstraint(Sketcher.Constraint("Diameter", 20, Q("7.9 mm")))
sketch1.addConstraint(Sketcher.Constraint("Diameter", 4, Q("3.95 mm")))
sketch1.addConstraint(Sketcher.Constraint("Diameter", 5, Q("2.95 mm")))
sketch1.addConstraint(Sketcher.Constraint("DistanceX", 52, 1, 52, 2, Q("10 mm")))
sketch1.addConstraint(Sketcher.Constraint("DistanceY", 0, 2, 0, 1, Q("130 mm")))
sketch1.addConstraint(Sketcher.Constraint("DistanceY", 9, 2, 9, 1, Q("13 mm")))
sketch1.addConstraint(Sketcher.Constraint("DistanceY", 51, 1, 51, 2, Q("5 mm")))
sketch1.addConstraint(Sketcher.Constraint("DistanceX", -1, 1, 4, 3, Q("12 mm")))
sketch1.addConstraint(Sketcher.Constraint("DistanceY", -1, 1, 7, 3, Q("25 mm")))
sketch1.addConstraint(Sketcher.Constraint("DistanceY", 19, 3, -1, 1, Q("12 mm")))
sketch1.addConstraint(Sketcher.Constraint("DistanceX", -1, 1, 51, 2, Q("5 mm")))
sketch1.addConstraint(Sketcher.Constraint("DistanceY", -1, 1, 51, 2, Q("125 mm")))
sketch1.addConstraint(Sketcher.Constraint("DistanceX", -1, 1, 5, 3, Q("13.5 mm")))
sketch1.addConstraint(Sketcher.Constraint("DistanceY", -1, 1, 5, 3, Q("18.5 mm")))
sketch1.addConstraint(Sketcher.Constraint("DistanceX", -1, 1, 6, 3, Q("4.5 mm")))
sketch1.addConstraint(Sketcher.Constraint("DistanceY", -1, 1, 10, 3, Q("42.5 mm")))
sketch1.addConstraint(Sketcher.Constraint("DistanceY", -1, 1, 40, 3, Q("66.5 mm")))
sketch1.addConstraint(Sketcher.Constraint("DistanceY", -1, 1, 48, 3, Q("90.5 mm")))
sketch1.addConstraint(Sketcher.Constraint("DistanceY", -1, 1, 71, 3, Q("122.5 mm")))
pad1 = body.newObject("PartDesign::Pad", "Pad")
pad1.Profile = sketch1
pad1.Length = 5

doc.recompute()
